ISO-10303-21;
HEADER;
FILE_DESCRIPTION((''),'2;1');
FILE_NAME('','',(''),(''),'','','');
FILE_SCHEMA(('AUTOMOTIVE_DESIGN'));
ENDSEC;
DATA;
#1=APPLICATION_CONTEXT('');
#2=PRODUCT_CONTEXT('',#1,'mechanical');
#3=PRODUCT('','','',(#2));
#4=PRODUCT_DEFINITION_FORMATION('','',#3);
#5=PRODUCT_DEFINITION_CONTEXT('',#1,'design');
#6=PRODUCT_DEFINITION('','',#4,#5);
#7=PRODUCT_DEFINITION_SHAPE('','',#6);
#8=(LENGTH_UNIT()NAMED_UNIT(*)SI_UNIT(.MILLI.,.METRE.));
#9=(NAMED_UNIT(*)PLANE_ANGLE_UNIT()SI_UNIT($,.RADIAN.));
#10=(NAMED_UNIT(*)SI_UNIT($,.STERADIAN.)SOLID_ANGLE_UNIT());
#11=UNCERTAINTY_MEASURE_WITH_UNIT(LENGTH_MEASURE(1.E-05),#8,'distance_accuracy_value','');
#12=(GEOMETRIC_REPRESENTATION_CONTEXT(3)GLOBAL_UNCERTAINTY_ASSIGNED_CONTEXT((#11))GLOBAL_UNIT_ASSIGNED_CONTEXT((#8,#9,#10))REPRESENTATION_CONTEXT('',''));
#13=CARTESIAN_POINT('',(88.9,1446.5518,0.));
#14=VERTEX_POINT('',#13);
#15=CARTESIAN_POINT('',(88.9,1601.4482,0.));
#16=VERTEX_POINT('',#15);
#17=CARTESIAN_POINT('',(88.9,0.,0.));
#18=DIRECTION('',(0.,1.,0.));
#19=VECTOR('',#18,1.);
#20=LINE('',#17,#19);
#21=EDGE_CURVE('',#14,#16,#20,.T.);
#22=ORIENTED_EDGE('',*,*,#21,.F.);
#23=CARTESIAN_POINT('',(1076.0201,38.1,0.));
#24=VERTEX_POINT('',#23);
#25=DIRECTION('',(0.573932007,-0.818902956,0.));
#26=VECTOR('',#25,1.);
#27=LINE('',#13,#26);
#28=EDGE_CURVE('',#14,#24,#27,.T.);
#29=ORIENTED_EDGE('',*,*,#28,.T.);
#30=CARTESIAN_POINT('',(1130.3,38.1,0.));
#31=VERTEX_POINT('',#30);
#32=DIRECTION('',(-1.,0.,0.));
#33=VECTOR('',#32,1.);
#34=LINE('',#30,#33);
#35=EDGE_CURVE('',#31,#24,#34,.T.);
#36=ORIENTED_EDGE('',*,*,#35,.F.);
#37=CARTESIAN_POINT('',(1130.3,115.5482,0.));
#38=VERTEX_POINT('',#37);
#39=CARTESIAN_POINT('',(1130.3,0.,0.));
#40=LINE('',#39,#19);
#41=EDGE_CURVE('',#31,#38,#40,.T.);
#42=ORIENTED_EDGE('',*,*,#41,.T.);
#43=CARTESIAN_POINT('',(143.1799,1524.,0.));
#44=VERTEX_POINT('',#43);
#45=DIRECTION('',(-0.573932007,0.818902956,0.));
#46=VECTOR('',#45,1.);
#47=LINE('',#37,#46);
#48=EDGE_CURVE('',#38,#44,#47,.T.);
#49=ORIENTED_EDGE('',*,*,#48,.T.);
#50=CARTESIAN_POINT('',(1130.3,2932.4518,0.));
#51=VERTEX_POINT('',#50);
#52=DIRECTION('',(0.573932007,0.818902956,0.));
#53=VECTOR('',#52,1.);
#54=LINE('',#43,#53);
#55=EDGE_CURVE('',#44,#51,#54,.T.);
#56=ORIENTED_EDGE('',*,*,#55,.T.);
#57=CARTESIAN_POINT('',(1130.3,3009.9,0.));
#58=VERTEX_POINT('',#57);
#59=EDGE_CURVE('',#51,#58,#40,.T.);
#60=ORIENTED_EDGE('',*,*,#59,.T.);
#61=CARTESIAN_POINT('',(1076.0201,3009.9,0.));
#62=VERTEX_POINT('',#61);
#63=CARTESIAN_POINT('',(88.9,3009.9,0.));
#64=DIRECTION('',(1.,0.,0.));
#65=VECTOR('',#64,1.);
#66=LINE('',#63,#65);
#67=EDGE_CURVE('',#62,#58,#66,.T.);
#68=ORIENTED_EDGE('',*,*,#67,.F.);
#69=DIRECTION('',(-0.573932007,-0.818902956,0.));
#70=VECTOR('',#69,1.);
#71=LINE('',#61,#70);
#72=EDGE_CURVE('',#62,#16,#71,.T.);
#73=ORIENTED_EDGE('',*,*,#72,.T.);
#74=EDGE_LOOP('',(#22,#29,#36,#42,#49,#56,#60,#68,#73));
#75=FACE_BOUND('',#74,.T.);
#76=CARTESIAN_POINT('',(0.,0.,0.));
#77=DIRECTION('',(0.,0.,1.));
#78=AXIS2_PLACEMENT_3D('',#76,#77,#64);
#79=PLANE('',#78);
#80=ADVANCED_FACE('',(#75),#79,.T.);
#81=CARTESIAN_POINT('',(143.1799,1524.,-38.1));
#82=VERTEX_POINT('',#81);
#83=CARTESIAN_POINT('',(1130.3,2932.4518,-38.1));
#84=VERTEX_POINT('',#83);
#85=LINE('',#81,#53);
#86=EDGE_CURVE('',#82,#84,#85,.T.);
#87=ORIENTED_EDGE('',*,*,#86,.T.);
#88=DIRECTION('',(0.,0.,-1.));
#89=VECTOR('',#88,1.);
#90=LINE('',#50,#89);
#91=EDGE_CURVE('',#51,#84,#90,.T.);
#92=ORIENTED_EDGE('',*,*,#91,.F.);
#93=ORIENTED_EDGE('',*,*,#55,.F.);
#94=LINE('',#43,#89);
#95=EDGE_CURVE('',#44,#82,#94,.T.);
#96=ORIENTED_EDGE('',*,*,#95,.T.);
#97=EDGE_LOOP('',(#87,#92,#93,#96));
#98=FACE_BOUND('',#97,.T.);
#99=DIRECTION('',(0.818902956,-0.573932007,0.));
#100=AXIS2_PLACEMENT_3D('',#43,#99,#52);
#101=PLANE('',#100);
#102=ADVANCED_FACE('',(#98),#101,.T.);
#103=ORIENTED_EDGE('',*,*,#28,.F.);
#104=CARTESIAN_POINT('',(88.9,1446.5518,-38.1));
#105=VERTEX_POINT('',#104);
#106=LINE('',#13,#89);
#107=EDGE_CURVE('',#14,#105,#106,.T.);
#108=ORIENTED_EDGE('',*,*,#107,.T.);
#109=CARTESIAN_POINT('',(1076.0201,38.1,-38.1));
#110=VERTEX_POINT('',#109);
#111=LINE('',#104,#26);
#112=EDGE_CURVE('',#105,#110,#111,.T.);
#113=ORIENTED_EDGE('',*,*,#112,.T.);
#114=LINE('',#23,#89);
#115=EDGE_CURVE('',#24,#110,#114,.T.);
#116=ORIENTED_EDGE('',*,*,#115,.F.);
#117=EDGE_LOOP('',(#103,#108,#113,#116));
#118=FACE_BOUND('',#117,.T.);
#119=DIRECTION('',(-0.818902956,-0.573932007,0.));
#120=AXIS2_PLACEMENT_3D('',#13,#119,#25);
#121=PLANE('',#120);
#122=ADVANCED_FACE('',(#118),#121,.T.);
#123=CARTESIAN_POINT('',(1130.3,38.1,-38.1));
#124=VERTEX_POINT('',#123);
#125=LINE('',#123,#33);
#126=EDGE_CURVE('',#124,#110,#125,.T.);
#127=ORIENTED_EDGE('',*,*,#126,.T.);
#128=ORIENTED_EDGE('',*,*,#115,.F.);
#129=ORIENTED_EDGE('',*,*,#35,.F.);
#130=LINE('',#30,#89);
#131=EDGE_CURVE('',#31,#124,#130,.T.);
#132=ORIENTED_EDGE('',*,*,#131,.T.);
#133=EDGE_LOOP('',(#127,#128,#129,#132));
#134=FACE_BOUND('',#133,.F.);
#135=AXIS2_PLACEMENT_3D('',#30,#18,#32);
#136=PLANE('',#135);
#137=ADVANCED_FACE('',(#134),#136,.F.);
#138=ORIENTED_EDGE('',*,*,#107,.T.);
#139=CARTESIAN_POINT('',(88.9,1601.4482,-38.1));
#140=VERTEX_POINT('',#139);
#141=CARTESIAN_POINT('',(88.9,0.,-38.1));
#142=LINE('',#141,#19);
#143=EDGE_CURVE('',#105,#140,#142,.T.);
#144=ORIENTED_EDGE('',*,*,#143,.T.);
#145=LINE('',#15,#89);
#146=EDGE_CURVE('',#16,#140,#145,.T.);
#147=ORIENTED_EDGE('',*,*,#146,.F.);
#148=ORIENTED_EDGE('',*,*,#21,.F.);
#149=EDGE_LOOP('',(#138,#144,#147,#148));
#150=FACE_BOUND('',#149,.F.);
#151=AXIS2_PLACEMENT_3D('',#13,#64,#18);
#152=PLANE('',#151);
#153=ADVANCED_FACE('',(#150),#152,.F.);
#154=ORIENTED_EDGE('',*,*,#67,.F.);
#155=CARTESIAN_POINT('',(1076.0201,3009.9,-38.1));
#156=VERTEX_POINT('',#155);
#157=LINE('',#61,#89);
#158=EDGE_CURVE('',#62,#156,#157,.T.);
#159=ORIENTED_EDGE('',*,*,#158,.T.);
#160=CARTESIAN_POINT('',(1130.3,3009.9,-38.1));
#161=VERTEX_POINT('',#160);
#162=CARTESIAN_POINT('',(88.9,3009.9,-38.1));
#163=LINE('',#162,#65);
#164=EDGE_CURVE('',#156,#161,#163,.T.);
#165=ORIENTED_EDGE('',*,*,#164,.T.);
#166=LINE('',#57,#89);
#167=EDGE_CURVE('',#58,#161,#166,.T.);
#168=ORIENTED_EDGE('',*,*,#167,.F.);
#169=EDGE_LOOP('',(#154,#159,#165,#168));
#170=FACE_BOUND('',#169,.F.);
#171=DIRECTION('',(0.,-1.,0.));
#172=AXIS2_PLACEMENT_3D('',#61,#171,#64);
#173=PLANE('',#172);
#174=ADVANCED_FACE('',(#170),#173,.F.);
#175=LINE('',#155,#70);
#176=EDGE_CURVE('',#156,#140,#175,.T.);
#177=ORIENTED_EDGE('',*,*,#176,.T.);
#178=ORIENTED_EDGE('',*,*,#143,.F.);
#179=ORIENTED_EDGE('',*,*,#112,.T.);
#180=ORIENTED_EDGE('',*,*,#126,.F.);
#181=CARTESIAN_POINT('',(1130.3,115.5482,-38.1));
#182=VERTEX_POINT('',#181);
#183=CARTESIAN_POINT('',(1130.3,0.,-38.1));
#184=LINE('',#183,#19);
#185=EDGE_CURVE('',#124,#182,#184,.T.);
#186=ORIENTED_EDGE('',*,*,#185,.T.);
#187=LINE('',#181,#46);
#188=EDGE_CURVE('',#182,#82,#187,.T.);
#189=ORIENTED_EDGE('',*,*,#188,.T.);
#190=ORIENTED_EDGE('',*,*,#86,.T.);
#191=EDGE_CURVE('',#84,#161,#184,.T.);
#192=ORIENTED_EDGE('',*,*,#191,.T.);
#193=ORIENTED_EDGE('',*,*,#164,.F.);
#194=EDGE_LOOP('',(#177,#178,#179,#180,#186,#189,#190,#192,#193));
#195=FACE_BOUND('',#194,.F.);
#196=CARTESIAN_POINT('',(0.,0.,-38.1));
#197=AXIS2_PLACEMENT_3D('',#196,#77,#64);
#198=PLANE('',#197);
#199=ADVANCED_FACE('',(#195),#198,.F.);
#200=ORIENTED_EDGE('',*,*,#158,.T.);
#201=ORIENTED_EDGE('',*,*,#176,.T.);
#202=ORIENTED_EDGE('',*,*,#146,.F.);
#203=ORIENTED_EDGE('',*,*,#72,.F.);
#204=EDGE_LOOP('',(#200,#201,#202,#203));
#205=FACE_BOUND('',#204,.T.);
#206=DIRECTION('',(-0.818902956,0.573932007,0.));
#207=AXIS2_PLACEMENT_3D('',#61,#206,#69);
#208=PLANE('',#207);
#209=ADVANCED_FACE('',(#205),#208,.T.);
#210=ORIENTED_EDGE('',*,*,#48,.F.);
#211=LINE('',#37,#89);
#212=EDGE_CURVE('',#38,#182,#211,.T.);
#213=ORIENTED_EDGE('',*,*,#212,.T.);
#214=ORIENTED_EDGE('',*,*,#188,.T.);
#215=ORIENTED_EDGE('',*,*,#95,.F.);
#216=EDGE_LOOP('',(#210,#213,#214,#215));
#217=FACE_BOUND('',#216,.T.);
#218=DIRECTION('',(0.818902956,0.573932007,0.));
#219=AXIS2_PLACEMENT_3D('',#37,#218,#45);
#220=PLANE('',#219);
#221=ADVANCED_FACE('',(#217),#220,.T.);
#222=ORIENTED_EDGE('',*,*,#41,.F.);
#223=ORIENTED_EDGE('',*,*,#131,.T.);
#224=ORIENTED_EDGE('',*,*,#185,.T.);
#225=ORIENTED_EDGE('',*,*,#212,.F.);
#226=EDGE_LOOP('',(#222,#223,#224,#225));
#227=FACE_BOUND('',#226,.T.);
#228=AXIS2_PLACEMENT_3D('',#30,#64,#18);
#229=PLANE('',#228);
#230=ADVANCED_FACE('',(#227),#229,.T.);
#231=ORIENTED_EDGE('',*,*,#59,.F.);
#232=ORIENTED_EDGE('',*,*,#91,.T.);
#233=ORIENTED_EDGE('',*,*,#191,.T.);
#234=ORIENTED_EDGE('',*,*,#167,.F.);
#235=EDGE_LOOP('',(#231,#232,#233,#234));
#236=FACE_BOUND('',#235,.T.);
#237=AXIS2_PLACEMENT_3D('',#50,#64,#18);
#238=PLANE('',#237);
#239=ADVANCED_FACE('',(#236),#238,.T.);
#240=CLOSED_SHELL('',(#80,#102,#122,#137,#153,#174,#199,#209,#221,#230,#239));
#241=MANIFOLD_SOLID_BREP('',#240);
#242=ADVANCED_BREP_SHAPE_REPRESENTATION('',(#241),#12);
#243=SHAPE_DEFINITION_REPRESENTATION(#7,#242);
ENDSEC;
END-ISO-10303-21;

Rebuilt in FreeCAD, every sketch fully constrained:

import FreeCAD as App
import Part
import Sketcher
from FreeCAD import Vector
Q = App.Units.Quantity

doc = App.newDocument("Part")
params = doc.addObject("Spreadsheet::Sheet", "Params")
for row, (alias, value) in enumerate([
    ("sketch1_width", "2.137 in"),
    ("pad1_length", "1.5 in"),
], start=1):
    params.set(f"A{row}", alias)
    params.set(f"B{row}", "=" + value)
    params.setAlias(f"B{row}", alias)

body = doc.addObject("PartDesign::Body", "Body")

# Sketch on XY plane
sketch1 = doc.addObject("Sketcher::SketchObject", "Sketch")
body.addObject(sketch1)
sketch1.AttachmentSupport = (doc.XY_Plane, [""])
sketch1.MapMode = "FlatFace"
sketch1.addGeometry([
    Part.LineSegment(Vector(89, 1601, 0), Vector(89, 1447, 0)),  # 0
    Part.LineSegment(Vector(89, 1447, 0), Vector(1076, 38, 0)),  # 1
    Part.LineSegment(Vector(1076, 38, 0), Vector(1130, 38, 0)),  # 2
    Part.LineSegment(Vector(1130, 38, 0), Vector(1130, 116, 0)),  # 3
    Part.LineSegment(Vector(1130, 116, 0), Vector(143, 1524, 0)),  # 4
    Part.LineSegment(Vector(143, 1524, 0), Vector(1130, 2932, 0)),  # 5
    Part.LineSegment(Vector(1130, 2932, 0), Vector(1130, 3010, 0)),  # 6
    Part.LineSegment(Vector(1130, 3010, 0), Vector(1076, 3010, 0)),  # 7
    Part.LineSegment(Vector(1076, 3010, 0), Vector(89, 1601, 0)),  # 8
], False)
sketch1.addConstraint([
    Sketcher.Constraint("Coincident", 0, 2, 1, 1),
    Sketcher.Constraint("Coincident", 1, 2, 2, 1),
    Sketcher.Constraint("Coincident", 2, 2, 3, 1),
    Sketcher.Constraint("Coincident", 3, 2, 4, 1),
    Sketcher.Constraint("Coincident", 4, 2, 5, 1),
    Sketcher.Constraint("Coincident", 5, 2, 6, 1),
    Sketcher.Constraint("Coincident", 6, 2, 7, 1),
    Sketcher.Constraint("Coincident", 7, 2, 8, 1),
    Sketcher.Constraint("Coincident", 8, 2, 0, 1),
    Sketcher.Constraint("Vertical", 0),
    Sketcher.Constraint("Horizontal", 2),
    Sketcher.Constraint("Vertical", 3),
    Sketcher.Constraint("Vertical", 6),
    Sketcher.Constraint("Horizontal", 7),
    Sketcher.Constraint("Parallel", 1, 4),
    Sketcher.Constraint("Parallel", 5, 8),
    Sketcher.Constraint("Vertical", 3, 2, 5, 2),
    Sketcher.Constraint("Vertical", 1, 2, 7, 2),
    Sketcher.Constraint("Equal", 3, 6),
    Sketcher.Constraint("Equal", 1, 4),
    Sketcher.Constraint("Equal", 4, 5),
    Sketcher.Constraint("DistanceY", -1, 1, 4, 2, Q("60 in")),
    Sketcher.Constraint("DistanceX", 0, 2, 2, 2, Q("41 in")),
    Sketcher.Constraint("DistanceY", 2, 2, 6, 2, Q("117 in")),
    Sketcher.Constraint("DistanceX", -1, 1, 0, 2, Q("3.5 in")),
    Sketcher.Constraint("DistanceX", 2, 1, 2, 2, Q("2.137 in")),
    Sketcher.Constraint("Distance", 1, Q("67.7136 in")),
])
sketch1.setExpression("Constraints[25]", "Params.sketch1_width")
pad1 = doc.addObject("PartDesign::Pad", "Pad")
body.addObject(pad1)
pad1.Profile = sketch1
pad1.setExpression("Length", "Params.pad1_length")
pad1.Reversed = True

doc.recompute()
